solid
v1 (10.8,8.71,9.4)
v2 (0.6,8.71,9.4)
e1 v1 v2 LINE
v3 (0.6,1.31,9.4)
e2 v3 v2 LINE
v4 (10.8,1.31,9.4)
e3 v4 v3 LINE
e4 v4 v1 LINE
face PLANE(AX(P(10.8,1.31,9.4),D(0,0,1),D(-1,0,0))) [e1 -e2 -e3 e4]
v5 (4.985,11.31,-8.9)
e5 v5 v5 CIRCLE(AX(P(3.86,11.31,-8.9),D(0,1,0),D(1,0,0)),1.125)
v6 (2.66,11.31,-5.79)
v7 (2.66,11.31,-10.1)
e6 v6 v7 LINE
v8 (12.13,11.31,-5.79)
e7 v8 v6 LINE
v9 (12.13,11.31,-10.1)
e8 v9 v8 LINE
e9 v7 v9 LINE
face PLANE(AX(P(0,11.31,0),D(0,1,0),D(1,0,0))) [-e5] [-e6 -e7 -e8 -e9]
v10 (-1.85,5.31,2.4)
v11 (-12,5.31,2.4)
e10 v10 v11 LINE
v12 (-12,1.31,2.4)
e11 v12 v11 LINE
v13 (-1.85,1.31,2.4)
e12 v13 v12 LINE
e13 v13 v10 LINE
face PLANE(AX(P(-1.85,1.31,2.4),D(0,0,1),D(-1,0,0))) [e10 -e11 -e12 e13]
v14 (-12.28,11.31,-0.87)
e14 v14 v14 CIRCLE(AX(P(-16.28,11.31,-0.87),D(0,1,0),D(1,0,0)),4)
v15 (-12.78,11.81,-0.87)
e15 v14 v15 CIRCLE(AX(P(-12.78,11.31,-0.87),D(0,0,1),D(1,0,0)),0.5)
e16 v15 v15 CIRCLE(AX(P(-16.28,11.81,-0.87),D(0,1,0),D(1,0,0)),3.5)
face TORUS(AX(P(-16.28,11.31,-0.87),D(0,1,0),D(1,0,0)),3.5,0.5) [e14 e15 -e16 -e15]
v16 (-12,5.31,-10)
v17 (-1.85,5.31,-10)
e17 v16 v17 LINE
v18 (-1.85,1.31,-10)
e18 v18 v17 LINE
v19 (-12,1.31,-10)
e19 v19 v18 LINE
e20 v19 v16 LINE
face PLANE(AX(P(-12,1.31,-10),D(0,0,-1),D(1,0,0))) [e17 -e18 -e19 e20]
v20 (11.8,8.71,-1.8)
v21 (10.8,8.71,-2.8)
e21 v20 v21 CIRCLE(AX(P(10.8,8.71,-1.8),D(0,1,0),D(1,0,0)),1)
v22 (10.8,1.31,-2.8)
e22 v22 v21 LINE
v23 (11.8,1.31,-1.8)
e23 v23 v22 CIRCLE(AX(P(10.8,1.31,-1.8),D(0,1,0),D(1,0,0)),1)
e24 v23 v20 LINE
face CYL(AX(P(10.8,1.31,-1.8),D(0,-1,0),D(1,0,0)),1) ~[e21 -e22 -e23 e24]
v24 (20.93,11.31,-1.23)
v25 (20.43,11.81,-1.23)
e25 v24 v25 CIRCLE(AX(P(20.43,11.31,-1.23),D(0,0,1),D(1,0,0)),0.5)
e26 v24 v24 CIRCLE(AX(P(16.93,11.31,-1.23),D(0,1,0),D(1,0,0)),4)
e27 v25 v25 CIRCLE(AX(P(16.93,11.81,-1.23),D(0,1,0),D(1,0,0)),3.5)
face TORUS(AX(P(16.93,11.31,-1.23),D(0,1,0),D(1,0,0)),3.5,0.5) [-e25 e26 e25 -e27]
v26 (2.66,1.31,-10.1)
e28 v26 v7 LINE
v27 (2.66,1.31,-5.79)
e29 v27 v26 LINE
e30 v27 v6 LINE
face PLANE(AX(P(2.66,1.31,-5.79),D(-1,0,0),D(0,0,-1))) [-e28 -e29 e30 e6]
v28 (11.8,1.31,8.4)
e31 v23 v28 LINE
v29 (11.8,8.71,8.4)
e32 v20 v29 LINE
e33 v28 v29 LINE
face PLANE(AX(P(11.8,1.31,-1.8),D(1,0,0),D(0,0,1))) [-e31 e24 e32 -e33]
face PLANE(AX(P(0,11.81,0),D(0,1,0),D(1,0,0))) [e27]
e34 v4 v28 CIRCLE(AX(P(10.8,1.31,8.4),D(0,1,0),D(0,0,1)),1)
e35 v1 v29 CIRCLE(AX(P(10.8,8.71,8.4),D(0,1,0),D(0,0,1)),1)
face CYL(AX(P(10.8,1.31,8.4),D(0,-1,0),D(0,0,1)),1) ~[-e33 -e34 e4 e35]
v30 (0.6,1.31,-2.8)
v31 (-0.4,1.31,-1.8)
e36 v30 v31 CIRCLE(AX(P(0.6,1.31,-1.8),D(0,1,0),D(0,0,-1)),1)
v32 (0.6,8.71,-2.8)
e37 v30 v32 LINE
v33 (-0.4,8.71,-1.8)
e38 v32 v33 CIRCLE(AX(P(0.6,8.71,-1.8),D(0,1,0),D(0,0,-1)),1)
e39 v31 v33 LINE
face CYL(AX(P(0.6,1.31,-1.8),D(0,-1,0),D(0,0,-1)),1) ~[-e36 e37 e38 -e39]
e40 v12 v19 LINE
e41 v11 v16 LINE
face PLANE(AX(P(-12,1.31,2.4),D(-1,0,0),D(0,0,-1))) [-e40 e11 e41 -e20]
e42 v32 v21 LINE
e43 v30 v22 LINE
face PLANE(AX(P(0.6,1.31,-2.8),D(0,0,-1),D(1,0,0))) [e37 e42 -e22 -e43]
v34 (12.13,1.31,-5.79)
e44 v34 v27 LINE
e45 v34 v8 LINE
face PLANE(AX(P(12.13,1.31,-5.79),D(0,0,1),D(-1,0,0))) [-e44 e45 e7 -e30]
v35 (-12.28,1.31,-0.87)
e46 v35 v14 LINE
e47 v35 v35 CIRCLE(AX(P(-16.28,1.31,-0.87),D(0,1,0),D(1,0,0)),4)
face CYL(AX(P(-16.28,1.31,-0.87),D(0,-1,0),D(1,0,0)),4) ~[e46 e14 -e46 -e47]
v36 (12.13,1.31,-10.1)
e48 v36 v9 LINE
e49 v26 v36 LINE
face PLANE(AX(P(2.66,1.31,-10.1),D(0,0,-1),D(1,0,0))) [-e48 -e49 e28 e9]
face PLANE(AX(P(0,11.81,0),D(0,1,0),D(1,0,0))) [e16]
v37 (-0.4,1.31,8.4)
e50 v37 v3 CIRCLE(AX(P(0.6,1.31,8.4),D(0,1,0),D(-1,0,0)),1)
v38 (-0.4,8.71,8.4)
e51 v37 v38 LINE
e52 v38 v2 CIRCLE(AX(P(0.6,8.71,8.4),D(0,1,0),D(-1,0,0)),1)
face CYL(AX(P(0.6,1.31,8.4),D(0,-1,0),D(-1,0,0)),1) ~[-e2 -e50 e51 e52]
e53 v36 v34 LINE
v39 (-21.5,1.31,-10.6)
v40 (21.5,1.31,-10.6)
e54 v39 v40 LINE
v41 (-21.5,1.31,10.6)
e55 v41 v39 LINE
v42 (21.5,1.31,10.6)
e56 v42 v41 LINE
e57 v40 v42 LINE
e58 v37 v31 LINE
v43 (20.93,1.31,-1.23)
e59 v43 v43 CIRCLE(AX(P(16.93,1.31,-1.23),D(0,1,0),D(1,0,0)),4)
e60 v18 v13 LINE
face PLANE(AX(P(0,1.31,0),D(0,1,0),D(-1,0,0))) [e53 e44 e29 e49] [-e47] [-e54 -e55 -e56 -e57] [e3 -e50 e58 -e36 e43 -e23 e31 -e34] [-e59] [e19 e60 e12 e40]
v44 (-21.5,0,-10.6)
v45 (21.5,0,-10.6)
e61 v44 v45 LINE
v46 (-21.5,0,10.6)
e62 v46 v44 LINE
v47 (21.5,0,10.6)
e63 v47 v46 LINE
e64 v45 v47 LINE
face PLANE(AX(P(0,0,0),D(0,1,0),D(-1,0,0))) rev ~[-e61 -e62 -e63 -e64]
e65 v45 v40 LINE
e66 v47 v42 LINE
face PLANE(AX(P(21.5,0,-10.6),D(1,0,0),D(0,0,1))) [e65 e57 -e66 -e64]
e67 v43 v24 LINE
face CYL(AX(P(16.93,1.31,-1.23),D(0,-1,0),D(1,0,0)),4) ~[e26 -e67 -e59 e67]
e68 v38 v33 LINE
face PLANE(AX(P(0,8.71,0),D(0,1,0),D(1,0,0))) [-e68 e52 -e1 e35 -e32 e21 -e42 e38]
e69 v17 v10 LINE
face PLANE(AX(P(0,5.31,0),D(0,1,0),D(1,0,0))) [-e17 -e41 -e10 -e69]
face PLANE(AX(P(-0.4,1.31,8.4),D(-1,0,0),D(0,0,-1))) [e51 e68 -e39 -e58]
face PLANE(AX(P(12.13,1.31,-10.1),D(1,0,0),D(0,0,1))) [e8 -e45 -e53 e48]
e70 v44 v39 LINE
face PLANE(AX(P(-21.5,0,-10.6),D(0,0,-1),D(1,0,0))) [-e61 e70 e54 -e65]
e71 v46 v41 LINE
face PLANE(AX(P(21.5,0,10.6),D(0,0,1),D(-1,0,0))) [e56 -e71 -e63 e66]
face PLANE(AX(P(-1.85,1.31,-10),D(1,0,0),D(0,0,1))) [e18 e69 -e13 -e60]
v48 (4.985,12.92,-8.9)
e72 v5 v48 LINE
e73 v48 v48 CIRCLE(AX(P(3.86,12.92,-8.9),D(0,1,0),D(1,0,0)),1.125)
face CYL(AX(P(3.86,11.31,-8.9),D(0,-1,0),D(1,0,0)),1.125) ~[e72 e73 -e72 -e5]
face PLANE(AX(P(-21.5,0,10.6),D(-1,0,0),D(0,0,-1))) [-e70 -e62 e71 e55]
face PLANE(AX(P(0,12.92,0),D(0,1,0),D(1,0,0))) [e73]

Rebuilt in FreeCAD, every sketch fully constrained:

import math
import FreeCAD as App
import Part
import Sketcher


def edges_at(feature, points):
    """Names of the edges that pass closest to the given points."""
    edges = feature.Shape.Edges
    near = lambda p: min(range(len(edges)), key=lambda i: edges[i].distToShape(Part.Vertex(*p))[0])
    return sorted({f"Edge{near(p) + 1}" for p in points})

doc = App.newDocument("Part")
body = doc.addObject("PartDesign::Body", "Body")

sketch1 = body.newObject("Sketcher::SketchObject", "Sketch")
sketch1.AttachmentSupport = (doc.getObject("XZ_Plane"), [""])
sketch1.MapMode = "FlatFace"
sketch1.addGeometry([
    Part.LineSegment(App.Vector(22, -11, 0), App.Vector(-22, -11, 0)),
    Part.LineSegment(App.Vector(-22, -11, 0), App.Vector(-22, 11, 0)),
    Part.LineSegment(App.Vector(-22, 11, 0), App.Vector(22, 11, 0)),
    Part.LineSegment(App.Vector(22, 11, 0), App.Vector(22, -11, 0)),
], False)
sketch1.addConstraint([
    Sketcher.Constraint("Coincident", 0, 2, 1, 1),
    Sketcher.Constraint("Coincident", 1, 2, 2, 1),
    Sketcher.Constraint("Coincident", 2, 2, 3, 1),
    Sketcher.Constraint("Coincident", 3, 2, 0, 1),
    Sketcher.Constraint("Horizontal", 0),
    Sketcher.Constraint("Vertical", 1),
    Sketcher.Constraint("Horizontal", 2),
    Sketcher.Constraint("Vertical", 3),
    Sketcher.Constraint("Symmetric", 0, 2, 2, 2, -1, 1),
    Sketcher.Constraint("DistanceX", 0, 2, 0, 1, 43.0),
    Sketcher.Constraint("DistanceY", 1, 1, 1, 2, 21.2),
])
pad1 = body.newObject("PartDesign::Pad", "Pad")
pad1.Profile = sketch1
pad1.Length = 1.31
pad1.Reversed = True

sketch2 = body.newObject("Sketcher::SketchObject", "Sketch001")
sketch2.AttachmentSupport = (doc.getObject("XZ_Plane"), [""])
sketch2.MapMode = "FlatFace"
sketch2.AttachmentOffset = App.Placement(App.Vector(0, 0, -1.31), App.Rotation())
sketch2.addGeometry([
    Part.LineSegment(App.Vector(-2, -10, 0), App.Vector(-12, -10, 0)),
    Part.LineSegment(App.Vector(-12, -10, 0), App.Vector(-12, 2, 0)),
    Part.LineSegment(App.Vector(-12, 2, 0), App.Vector(-2, 2, 0)),
    Part.LineSegment(App.Vector(-2, 2, 0), App.Vector(-2, -10, 0)),
], False)
sketch2.addConstraint([
    Sketcher.Constraint("Coincident", 0, 2, 1, 1),
    Sketcher.Constraint("Coincident", 1, 2, 2, 1),
    Sketcher.Constraint("Coincident", 2, 2, 3, 1),
    Sketcher.Constraint("Coincident", 3, 2, 0, 1),
    Sketcher.Constraint("Horizontal", 0),
    Sketcher.Constraint("Vertical", 1),
    Sketcher.Constraint("Horizontal", 2),
    Sketcher.Constraint("Vertical", 3),
    Sketcher.Constraint("DistanceY", 1, 1, 1, 2, 12.4),
    Sketcher.Constraint("DistanceX", 0, 2, 0, 1, 10.15),
    Sketcher.Constraint("DistanceX", 0, 2, -1, 1, 12.0),
    Sketcher.Constraint("DistanceY", 0, 2, -1, 1, 10.0),
])
pad2 = body.newObject("PartDesign::Pad", "Pad001")
pad2.Profile = sketch2
pad2.Length = 4
pad2.Reversed = True

sketch3 = body.newObject("Sketcher::SketchObject", "Sketch002")
sketch3.AttachmentSupport = (doc.getObject("XZ_Plane"), [""])
sketch3.MapMode = "FlatFace"
sketch3.AttachmentOffset = App.Placement(App.Vector(0, 0, -1.31), App.Rotation())
sketch3.addGeometry([
    Part.LineSegment(App.Vector(10.8, -2.8, 0), App.Vector(0.6, -2.8, 0)),
    Part.ArcOfCircle(Part.Circle(App.Vector(0.6, -1.8, 0), App.Vector(0, 0, 1), 1), math.radians(180), math.radians(270)),
    Part.LineSegment(App.Vector(-0.4, -1.8, 0), App.Vector(-0.4, 8.4, 0)),
    Part.ArcOfCircle(Part.Circle(App.Vector(0.6, 8.4, 0), App.Vector(0, 0, 1), 1), math.radians(90), math.radians(180)),
    Part.LineSegment(App.Vector(0.6, 9.4, 0), App.Vector(10.8, 9.4, 0)),
    Part.ArcOfCircle(Part.Circle(App.Vector(10.8, 8.4, 0), App.Vector(0, 0, 1), 1), math.radians(0), math.radians(90)),
    Part.LineSegment(App.Vector(11.8, 8.4, 0), App.Vector(11.8, -1.8, 0)),
    Part.ArcOfCircle(Part.Circle(App.Vector(10.8, -1.8, 0), App.Vector(0, 0, 1), 1), math.radians(-90), math.radians(0)),
], False)
sketch3.addConstraint([
    Sketcher.Constraint("Tangent", 0, 2, 1, 2),
    Sketcher.Constraint("Tangent", 1, 1, 2, 1),
    Sketcher.Constraint("Tangent", 2, 2, 3, 2),
    Sketcher.Constraint("Tangent", 3, 1, 4, 1),
    Sketcher.Constraint("Tangent", 4, 2, 5, 2),
    Sketcher.Constraint("Tangent", 5, 1, 6, 1),
    Sketcher.Constraint("Tangent", 6, 2, 7, 2),
    Sketcher.Constraint("Tangent", 7, 1, 0, 1),
    Sketcher.Constraint("Horizontal", 0),
    Sketcher.Constraint("Vertical", 2),
    Sketcher.Constraint("Horizontal", 4),
    Sketcher.Constraint("Vertical", 6),
    Sketcher.Constraint("Equal", 1, 3),
    Sketcher.Constraint("Equal", 3, 5),
    Sketcher.Constraint("Equal", 5, 7),
    Sketcher.Constraint("Equal", 4, 2),
    Sketcher.Constraint("Radius", 1, 1.0),
    Sketcher.Constraint("DistanceX", 0, 2, 0, 1, 10.2),
    Sketcher.Constraint("DistanceX", -1, 1, 1, 3, 0.6),
    Sketcher.Constraint("DistanceY", 1, 3, -1, 1, 1.8),
])
pad3 = body.newObject("PartDesign::Pad", "Pad002")
pad3.Profile = sketch3
pad3.Length = 7.4
pad3.Reversed = True

sketch4 = body.newObject("Sketcher::SketchObject", "Sketch003")
sketch4.AttachmentSupport = (doc.getObject("XZ_Plane"), [""])
sketch4.MapMode = "FlatFace"
sketch4.AttachmentOffset = App.Placement(App.Vector(0, 0, -1.31), App.Rotation())
sketch4.addGeometry([
    Part.LineSegment(App.Vector(12.1, -10.1, 0), App.Vector(2.7, -10.1, 0)),
    Part.LineSegment(App.Vector(2.7, -10.1, 0), App.Vector(2.7, -5.8, 0)),
    Part.LineSegment(App.Vector(2.7, -5.8, 0), App.Vector(12.1, -5.8, 0)),
    Part.LineSegment(App.Vector(12.1, -5.8, 0), App.Vector(12.1, -10.1, 0)),
], False)
sketch4.addConstraint([
    Sketcher.Constraint("Coincident", 0, 2, 1, 1),
    Sketcher.Constraint("Coincident", 1, 2, 2, 1),
    Sketcher.Constraint("Coincident", 2, 2, 3, 1),
    Sketcher.Constraint("Coincident", 3, 2, 0, 1),
    Sketcher.Constraint("Horizontal", 0),
    Sketcher.Constraint("Vertical", 1),
    Sketcher.Constraint("Horizontal", 2),
    Sketcher.Constraint("Vertical", 3),
    Sketcher.Constraint("DistanceX", 0, 2, 0, 1, 9.47),
    Sketcher.Constraint("DistanceY", 1, 1, 1, 2, 4.31),
    Sketcher.Constraint("DistanceY", 0, 2, -1, 1, 10.1),
    Sketcher.Constraint("DistanceX", -1, 1, 0, 2, 2.66),
])
pad4 = body.newObject("PartDesign::Pad", "Pad003")
pad4.Profile = sketch4
pad4.Length = 10
pad4.Reversed = True

sketch5 = body.newObject("Sketcher::SketchObject", "Sketch004")
sketch5.AttachmentSupport = (doc.getObject("XZ_Plane"), [""])
sketch5.MapMode = "FlatFace"
sketch5.AttachmentOffset = App.Placement(App.Vector(0, 0, -11.31), App.Rotation())
sketch5.addGeometry(Part.Circle(App.Vector(3.9, -8.9, 0), App.Vector(0, 0, 1), 1.1), False)
sketch5.addConstraint([
    Sketcher.Constraint("Diameter", 0, 2.25),
    Sketcher.Constraint("DistanceY", 0, 3, -1, 1, 8.9),
    Sketcher.Constraint("DistanceX", -1, 1, 0, 3, 3.86),
])
pad5 = body.newObject("PartDesign::Pad", "Pad004")
pad5.Profile = sketch5
pad5.Length = 1.61
pad5.Reversed = True

sketch6 = body.newObject("Sketcher::SketchObject", "Sketch005")
sketch6.AttachmentSupport = (doc.getObject("XZ_Plane"), [""])
sketch6.MapMode = "FlatFace"
sketch6.AttachmentOffset = App.Placement(App.Vector(0, 0, -1.31), App.Rotation())
sketch6.addGeometry([
    Part.Circle(App.Vector(-16.3, -0.9, 0), App.Vector(0, 0, 1), 4),
    Part.Circle(App.Vector(16.9, -1.2, 0), App.Vector(0, 0, 1), 4),
], False)
sketch6.addConstraint([
    Sketcher.Constraint("Equal", 0, 1),
    Sketcher.Constraint("Diameter", 0, 8.0),
    Sketcher.Constraint("DistanceX", 0, 3, -1, 1, 16.28),
    Sketcher.Constraint("DistanceY", 0, 3, -1, 1, 0.87),
    Sketcher.Constraint("DistanceX", -1, 1, 1, 3, 16.93),
    Sketcher.Constraint("DistanceY", 1, 3, -1, 1, 1.23),
])
pad6 = body.newObject("PartDesign::Pad", "Pad005")
pad6.Profile = sketch6
pad6.Length = 10.5
pad6.Reversed = True
doc.recompute()

fillet = body.newObject("PartDesign::Fillet", "Fillet")
fillet.Base = (pad6, edges_at(pad6, [(12.93, 11.81, -1.23), (-20.28, 11.81, -0.87)]))
fillet.Radius = 0.5

doc.recompute()
